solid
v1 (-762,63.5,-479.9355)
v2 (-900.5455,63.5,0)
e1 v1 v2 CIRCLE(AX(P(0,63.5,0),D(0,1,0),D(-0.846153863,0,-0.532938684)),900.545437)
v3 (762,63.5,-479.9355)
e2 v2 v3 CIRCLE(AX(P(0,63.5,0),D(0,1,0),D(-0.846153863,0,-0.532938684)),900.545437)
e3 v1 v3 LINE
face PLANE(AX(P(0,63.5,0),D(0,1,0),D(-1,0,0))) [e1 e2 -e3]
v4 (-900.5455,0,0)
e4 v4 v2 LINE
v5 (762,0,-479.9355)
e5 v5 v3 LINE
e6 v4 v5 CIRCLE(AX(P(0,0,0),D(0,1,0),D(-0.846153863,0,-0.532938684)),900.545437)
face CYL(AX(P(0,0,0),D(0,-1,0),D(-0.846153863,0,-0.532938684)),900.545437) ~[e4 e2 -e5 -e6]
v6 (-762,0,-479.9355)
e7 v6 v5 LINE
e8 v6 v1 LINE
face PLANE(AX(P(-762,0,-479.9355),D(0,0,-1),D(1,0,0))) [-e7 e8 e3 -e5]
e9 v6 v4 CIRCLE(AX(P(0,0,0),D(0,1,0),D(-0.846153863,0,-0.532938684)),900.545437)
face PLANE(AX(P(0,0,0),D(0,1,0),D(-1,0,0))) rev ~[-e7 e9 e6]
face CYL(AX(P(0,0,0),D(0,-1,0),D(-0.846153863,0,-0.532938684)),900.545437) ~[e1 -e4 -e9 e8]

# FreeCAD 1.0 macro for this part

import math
import FreeCAD as App
import Part
import Sketcher
from FreeCAD import Vector
Q = App.Units.Quantity

doc = App.newDocument("Part")
body = doc.addObject("PartDesign::Body", "Body")

# Sketch on XZ plane
sketch1 = body.newObject("Sketcher::SketchObject", "Sketch")
sketch1.AttachmentSupport = (doc.getObject("XZ_Plane"), [""])
sketch1.MapMode = "FlatFace"
sketch1.addGeometry([
    Part.LineSegment(Vector(762, -479.9355, 0), Vector(-762, -479.9355, 0)),
    Part.ArcOfCircle(Part.Circle(Vector(0, 0, 0), Vector(0, 0, 1), 900.545437), math.radians(-32.204226), math.radians(212.204226)),
], False)
sketch1.addConstraint([
    Sketcher.Constraint("Coincident", 0, 1, 1, 1),
    Sketcher.Constraint("Coincident", 1, 2, 0, 2),
    Sketcher.Constraint("Horizontal", 0),
    Sketcher.Constraint("Coincident", 1, 3, -1, 1),
    Sketcher.Constraint("DistanceX", 0, 2, 0, 1, Q("60 in")),
    Sketcher.Constraint("Radius", 1, 900.5454),
])
pad1 = body.newObject("PartDesign::Pad", "Pad")
pad1.Profile = sketch1
pad1.Length = Q("2.5 in")
pad1.Reversed = True

doc.recompute()
